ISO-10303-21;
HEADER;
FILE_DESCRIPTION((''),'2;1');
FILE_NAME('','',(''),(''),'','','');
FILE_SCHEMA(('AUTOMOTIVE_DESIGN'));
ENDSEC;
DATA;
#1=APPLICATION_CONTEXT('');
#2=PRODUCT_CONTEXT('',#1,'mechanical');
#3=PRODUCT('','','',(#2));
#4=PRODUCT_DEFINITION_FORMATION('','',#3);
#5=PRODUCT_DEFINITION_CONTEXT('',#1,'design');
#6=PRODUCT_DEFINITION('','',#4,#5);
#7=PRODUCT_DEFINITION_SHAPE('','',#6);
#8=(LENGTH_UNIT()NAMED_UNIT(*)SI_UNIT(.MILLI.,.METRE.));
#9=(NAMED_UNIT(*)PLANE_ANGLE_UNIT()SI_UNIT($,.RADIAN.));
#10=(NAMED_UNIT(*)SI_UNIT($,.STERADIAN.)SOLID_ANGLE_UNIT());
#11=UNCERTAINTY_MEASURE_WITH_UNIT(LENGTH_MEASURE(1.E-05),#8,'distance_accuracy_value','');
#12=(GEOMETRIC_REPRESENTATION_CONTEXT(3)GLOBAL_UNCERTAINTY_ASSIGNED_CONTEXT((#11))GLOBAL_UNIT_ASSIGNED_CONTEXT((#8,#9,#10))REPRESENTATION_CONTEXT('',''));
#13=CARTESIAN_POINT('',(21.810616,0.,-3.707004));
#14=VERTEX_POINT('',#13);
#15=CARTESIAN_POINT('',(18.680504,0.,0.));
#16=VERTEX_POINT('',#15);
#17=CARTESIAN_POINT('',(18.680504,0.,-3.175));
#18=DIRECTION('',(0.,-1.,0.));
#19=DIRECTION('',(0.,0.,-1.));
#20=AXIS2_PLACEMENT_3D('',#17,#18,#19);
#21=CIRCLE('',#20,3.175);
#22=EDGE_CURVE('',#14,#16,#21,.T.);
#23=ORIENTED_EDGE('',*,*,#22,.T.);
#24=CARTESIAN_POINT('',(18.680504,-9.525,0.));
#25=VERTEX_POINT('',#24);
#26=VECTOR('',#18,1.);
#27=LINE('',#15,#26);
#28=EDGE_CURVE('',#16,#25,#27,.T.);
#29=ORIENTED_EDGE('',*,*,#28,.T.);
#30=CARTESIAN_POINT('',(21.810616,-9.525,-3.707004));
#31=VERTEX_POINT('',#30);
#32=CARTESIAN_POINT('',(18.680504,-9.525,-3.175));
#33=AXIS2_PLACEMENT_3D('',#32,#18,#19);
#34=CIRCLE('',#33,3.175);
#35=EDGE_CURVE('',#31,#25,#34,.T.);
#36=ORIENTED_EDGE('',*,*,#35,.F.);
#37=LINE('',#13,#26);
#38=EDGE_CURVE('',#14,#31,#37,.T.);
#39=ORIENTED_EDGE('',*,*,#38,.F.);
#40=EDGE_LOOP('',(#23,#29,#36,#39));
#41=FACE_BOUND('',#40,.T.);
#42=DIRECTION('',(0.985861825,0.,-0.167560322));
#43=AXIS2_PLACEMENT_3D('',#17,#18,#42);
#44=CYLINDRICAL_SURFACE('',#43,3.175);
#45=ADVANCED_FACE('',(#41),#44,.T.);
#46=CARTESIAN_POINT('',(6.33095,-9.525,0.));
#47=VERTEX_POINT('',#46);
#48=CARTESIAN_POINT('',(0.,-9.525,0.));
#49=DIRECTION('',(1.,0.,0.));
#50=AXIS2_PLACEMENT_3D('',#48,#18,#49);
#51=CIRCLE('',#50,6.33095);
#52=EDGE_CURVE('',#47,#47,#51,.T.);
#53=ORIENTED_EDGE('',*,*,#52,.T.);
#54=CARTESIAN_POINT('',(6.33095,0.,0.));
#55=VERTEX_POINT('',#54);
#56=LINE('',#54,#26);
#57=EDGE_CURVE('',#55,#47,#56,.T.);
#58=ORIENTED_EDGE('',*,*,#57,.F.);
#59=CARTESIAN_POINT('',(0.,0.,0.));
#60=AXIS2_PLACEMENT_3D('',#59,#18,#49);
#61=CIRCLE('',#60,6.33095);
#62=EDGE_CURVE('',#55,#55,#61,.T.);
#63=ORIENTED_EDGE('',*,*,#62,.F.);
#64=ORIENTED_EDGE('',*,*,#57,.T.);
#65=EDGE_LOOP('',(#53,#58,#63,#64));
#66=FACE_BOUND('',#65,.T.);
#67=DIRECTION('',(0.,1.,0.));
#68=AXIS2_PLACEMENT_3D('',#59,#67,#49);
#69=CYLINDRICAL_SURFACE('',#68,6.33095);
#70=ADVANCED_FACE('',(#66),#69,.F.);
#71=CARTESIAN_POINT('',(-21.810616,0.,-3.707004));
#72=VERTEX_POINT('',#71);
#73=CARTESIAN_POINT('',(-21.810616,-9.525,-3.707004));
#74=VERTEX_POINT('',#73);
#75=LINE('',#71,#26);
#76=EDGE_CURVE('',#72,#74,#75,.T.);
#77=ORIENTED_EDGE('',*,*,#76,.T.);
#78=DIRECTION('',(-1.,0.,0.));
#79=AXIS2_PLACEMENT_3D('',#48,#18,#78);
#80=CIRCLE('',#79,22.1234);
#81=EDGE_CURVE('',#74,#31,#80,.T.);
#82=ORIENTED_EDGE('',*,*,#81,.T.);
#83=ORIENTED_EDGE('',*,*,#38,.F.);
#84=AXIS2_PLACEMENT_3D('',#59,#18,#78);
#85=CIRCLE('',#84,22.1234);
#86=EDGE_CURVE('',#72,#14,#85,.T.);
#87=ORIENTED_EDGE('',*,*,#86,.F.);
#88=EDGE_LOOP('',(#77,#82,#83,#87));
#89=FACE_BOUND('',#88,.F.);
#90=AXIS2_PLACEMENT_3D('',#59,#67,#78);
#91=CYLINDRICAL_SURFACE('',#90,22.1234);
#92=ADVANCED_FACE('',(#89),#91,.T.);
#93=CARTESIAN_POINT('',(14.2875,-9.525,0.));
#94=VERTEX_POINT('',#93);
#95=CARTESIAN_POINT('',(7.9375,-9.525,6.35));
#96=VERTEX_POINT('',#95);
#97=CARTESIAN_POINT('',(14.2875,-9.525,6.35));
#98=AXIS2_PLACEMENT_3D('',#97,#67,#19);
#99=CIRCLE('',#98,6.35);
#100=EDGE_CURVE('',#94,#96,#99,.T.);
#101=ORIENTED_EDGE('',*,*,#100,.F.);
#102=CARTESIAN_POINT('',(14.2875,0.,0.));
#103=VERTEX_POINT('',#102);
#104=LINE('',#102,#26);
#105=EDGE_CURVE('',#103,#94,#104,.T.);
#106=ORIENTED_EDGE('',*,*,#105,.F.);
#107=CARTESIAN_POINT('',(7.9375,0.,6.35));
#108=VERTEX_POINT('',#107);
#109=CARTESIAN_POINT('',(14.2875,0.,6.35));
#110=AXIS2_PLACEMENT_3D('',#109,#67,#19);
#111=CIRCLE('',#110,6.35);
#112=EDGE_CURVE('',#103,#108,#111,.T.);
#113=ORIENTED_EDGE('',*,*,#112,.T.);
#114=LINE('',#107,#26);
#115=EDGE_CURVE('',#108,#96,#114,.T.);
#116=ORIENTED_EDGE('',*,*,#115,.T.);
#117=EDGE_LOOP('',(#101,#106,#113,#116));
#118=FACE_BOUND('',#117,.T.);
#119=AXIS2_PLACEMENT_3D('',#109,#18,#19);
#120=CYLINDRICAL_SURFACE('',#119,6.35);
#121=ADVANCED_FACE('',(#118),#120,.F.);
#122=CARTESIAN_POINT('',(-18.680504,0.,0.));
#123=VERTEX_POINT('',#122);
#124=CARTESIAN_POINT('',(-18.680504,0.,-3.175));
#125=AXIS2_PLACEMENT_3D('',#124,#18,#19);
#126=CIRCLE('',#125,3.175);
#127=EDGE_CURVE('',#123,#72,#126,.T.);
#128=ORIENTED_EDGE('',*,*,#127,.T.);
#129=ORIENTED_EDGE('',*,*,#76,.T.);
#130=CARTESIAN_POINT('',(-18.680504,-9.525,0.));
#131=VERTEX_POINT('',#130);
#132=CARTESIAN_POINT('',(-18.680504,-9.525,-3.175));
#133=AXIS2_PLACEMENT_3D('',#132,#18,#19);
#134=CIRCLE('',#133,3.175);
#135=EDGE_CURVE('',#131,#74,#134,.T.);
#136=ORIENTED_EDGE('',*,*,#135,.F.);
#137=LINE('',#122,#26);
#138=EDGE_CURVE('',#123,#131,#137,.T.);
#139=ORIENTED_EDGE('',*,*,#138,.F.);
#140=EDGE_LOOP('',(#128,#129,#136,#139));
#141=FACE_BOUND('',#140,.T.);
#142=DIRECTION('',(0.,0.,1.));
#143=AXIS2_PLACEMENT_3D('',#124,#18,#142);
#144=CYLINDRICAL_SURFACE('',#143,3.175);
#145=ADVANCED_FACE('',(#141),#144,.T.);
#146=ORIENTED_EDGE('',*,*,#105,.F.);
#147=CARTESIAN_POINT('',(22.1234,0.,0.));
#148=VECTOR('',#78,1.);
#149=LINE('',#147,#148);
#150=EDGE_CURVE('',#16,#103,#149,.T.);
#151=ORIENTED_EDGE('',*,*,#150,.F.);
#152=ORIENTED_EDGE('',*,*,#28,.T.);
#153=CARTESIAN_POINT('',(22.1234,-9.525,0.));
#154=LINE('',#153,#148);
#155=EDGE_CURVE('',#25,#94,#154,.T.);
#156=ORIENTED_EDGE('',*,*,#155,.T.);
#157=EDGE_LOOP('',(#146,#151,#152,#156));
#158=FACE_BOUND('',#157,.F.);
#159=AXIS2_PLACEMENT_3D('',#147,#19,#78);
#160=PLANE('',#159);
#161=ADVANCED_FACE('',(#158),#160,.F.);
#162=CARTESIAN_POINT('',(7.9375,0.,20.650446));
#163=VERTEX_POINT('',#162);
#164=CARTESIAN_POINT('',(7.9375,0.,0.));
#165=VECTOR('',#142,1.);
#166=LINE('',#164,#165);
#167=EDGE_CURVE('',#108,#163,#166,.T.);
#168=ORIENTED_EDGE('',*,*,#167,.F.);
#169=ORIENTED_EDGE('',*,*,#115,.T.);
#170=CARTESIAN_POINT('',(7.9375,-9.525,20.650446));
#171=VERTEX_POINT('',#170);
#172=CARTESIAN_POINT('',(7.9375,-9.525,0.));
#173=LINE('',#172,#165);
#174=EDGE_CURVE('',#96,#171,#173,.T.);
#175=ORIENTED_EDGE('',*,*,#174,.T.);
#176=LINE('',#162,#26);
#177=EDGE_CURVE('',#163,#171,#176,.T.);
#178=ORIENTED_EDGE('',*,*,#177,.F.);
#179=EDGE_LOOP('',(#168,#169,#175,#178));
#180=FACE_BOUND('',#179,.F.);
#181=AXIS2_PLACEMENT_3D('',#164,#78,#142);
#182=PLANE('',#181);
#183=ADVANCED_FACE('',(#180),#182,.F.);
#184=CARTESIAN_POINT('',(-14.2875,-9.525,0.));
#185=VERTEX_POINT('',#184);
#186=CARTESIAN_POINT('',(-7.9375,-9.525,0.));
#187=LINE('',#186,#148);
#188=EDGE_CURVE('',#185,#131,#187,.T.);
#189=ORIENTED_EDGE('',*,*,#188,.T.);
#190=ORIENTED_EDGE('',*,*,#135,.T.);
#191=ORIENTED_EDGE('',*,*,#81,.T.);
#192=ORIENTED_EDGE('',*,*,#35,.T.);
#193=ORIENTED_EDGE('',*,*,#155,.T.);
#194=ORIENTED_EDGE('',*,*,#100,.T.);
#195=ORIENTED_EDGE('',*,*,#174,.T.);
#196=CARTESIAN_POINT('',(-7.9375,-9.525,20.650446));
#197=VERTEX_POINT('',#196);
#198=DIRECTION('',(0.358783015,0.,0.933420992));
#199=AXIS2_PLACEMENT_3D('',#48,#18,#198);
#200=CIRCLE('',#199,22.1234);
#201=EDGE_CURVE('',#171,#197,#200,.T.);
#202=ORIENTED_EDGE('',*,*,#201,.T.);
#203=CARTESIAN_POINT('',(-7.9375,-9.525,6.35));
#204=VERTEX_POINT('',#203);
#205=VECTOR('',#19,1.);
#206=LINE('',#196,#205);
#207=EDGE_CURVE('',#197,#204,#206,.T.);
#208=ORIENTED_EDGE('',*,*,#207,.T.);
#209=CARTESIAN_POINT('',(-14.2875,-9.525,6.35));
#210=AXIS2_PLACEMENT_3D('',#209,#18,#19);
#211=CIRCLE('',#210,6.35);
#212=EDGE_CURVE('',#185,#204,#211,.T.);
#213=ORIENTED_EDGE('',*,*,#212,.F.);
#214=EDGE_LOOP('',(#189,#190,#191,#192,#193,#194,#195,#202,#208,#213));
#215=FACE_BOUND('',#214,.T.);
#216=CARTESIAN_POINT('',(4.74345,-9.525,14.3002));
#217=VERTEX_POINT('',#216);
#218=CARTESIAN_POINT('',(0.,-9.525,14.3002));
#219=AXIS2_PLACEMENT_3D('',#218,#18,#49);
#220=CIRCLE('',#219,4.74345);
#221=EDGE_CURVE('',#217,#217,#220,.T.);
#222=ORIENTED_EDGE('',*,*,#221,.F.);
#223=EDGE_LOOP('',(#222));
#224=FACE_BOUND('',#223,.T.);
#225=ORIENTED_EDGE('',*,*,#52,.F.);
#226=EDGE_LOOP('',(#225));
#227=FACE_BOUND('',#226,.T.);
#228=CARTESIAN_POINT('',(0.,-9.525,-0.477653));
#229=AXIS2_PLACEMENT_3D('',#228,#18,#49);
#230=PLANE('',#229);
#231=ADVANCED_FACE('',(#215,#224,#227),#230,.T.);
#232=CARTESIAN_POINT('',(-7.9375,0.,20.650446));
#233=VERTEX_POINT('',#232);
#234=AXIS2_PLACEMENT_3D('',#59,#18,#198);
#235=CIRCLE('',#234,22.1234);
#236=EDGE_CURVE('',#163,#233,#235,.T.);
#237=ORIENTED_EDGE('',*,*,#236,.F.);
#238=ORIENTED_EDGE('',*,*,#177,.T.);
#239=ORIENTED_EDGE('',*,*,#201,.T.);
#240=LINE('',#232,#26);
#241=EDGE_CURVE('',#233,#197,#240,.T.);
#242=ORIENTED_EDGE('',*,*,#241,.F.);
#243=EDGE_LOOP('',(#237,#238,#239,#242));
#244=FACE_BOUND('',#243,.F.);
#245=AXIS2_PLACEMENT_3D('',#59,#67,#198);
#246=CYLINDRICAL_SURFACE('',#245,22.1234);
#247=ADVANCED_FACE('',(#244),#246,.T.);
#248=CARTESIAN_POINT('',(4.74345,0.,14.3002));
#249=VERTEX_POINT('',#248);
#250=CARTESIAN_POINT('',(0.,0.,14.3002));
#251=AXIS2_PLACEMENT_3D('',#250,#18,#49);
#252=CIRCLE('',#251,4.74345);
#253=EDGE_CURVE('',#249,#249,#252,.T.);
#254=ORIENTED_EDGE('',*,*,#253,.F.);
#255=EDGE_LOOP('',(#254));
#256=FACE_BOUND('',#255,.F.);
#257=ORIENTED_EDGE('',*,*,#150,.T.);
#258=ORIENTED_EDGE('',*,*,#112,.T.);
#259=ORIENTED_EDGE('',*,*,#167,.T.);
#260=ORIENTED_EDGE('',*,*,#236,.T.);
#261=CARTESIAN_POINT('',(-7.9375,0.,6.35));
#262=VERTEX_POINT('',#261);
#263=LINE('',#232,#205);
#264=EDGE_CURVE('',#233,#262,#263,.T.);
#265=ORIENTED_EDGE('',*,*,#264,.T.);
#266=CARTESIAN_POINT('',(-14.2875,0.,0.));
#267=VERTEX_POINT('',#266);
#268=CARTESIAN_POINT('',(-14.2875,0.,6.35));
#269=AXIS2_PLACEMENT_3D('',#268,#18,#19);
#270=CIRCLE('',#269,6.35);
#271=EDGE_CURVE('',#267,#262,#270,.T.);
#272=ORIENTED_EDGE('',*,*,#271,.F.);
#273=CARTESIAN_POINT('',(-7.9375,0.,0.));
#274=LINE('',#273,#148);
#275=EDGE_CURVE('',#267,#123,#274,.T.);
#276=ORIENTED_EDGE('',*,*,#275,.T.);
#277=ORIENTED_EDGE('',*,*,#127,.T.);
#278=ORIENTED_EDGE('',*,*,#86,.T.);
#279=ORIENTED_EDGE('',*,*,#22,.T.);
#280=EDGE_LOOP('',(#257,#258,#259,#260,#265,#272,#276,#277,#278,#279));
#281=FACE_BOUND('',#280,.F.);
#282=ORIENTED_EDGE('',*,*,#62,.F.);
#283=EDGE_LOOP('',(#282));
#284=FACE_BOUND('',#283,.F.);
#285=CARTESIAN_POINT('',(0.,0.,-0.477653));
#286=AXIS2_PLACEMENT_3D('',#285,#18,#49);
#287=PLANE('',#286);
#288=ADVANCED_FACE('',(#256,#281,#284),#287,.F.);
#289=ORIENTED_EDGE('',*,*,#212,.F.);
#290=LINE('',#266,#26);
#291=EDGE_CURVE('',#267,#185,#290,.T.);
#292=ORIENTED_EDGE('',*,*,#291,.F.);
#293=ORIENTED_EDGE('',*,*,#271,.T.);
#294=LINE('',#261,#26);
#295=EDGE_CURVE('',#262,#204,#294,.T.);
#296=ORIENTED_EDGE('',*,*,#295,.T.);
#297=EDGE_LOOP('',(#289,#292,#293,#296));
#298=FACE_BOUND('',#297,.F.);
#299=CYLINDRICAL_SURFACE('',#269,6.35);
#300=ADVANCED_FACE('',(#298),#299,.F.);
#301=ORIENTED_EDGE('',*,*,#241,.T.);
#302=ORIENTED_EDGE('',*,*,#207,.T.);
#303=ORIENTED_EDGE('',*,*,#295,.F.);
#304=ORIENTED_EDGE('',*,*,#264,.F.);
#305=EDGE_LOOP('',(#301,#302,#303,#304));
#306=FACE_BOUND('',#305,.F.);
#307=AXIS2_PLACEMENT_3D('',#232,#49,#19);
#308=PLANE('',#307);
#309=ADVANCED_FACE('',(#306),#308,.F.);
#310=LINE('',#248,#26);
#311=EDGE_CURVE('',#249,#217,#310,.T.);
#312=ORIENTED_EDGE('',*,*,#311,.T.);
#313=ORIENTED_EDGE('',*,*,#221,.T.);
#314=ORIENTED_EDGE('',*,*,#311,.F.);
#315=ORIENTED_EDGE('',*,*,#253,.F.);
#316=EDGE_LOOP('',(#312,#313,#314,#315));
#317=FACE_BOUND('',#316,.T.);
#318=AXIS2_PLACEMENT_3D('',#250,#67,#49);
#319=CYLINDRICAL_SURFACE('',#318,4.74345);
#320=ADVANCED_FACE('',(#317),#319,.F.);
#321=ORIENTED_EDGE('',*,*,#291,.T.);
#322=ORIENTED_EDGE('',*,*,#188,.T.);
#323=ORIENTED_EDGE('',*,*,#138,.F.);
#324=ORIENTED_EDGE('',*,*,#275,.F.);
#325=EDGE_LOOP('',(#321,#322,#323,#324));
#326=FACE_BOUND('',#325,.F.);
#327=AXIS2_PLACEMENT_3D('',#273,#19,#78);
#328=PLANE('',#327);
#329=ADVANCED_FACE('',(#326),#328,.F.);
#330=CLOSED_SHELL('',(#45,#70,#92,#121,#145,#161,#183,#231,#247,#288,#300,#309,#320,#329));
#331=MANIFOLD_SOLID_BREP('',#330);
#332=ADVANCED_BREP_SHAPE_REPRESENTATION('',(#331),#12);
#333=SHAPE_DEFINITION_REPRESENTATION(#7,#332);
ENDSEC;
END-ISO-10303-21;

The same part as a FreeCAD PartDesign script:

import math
import FreeCAD as App
import Part
import Sketcher
from FreeCAD import Vector
Q = App.Units.Quantity


def edges_at(feature, points):
    """Names of the edges that pass closest to the given points."""
    edges = feature.Shape.Edges
    near = lambda p: min(range(len(edges)), key=lambda i: edges[i].distToShape(Part.Vertex(*p))[0])
    return sorted({f"Edge{near(p) + 1}" for p in points})

doc = App.newDocument("Part")
body = doc.addObject("PartDesign::Body", "Body")

# Sketch on XZ plane
sketch1 = body.newObject("Sketcher::SketchObject", "Sketch")
sketch1.AttachmentSupport = (doc.getObject("XZ_Plane"), [""])
sketch1.MapMode = "FlatFace"
sketch1.addGeometry([
    Part.LineSegment(Vector(-7.9, 0, 0), Vector(-22.1, 0, 0)),  # 0
    Part.ArcOfCircle(Part.Circle(Vector(0, 0, 0), Vector(0, 0, 1), 22.1), math.radians(180), math.radians(360)),  # 1
    Part.LineSegment(Vector(22.1, 0, 0), Vector(7.9, 0, 0)),  # 2
    Part.LineSegment(Vector(7.9, 0, 0), Vector(7.9, 20.7, 0)),  # 3
    Part.ArcOfCircle(Part.Circle(Vector(0, 0, 0), Vector(0, 0, 1), 22.1), math.radians(69), math.radians(111)),  # 4
    Part.LineSegment(Vector(-7.9, 20.7, 0), Vector(-7.9, 0, 0)),  # 5
    Part.Circle(Vector(0, 0, 0), Vector(0, 0, 1), 6.3),  # 6
    Part.Circle(Vector(0, 14.3, 0), Vector(0, 0, 1), 4.7),  # 7
], False)
sketch1.addConstraint([
    Sketcher.Constraint("Coincident", 0, 2, 1, 1),
    Sketcher.Constraint("Coincident", 1, 2, 2, 1),
    Sketcher.Constraint("Coincident", 2, 2, 3, 1),
    Sketcher.Constraint("Coincident", 3, 2, 4, 1),
    Sketcher.Constraint("Coincident", 4, 2, 5, 1),
    Sketcher.Constraint("Coincident", 5, 2, 0, 1),
    Sketcher.Constraint("Horizontal", 0),
    Sketcher.Constraint("Horizontal", 2),
    Sketcher.Constraint("Vertical", 3),
    Sketcher.Constraint("Vertical", 5),
    Sketcher.Constraint("Coincident", 1, 3, -1, 1),
    Sketcher.Constraint("Coincident", 4, 3, -1, 1),
    Sketcher.Constraint("Coincident", 6, 3, -1, 1),
    Sketcher.Constraint("Equal", 1, 4),
    Sketcher.Constraint("Symmetric", 2, 2, 5, 2, -1, 1),
    Sketcher.Constraint("PointOnObject", 7, 3, -2),
    Sketcher.Constraint("PointOnObject", 0, 2, -1),
    Sketcher.Constraint("Radius", 1, Q("0.871 in")),
    Sketcher.Constraint("Diameter", 6, Q("0.4985 in")),
    Sketcher.Constraint("Diameter", 7, Q("0.3735 in")),
    Sketcher.Constraint("DistanceX", 0, 2, 0, 1, Q("0.5585 in")),
    Sketcher.Constraint("DistanceY", -1, 1, 7, 3, Q("0.563 in")),
])
pad1 = body.newObject("PartDesign::Pad", "Pad")
pad1.Profile = sketch1
pad1.Length = Q("0.375 in")
doc.recompute()

fillet = body.newObject("PartDesign::Fillet", "Fillet")
fillet.Base = (pad1, edges_at(pad1, [(-7.938, -4.763, 0), (7.938, -4.763, 0)]))
fillet.Radius = Q("0.25 in")
doc.recompute()

fillet2 = body.newObject("PartDesign::Fillet", "Fillet001")
fillet2.Base = (fillet, edges_at(fillet, [(-22.123, -4.763, 0), (22.123, -4.763, 0)]))
fillet2.Radius = Q("0.125 in")

doc.recompute()
